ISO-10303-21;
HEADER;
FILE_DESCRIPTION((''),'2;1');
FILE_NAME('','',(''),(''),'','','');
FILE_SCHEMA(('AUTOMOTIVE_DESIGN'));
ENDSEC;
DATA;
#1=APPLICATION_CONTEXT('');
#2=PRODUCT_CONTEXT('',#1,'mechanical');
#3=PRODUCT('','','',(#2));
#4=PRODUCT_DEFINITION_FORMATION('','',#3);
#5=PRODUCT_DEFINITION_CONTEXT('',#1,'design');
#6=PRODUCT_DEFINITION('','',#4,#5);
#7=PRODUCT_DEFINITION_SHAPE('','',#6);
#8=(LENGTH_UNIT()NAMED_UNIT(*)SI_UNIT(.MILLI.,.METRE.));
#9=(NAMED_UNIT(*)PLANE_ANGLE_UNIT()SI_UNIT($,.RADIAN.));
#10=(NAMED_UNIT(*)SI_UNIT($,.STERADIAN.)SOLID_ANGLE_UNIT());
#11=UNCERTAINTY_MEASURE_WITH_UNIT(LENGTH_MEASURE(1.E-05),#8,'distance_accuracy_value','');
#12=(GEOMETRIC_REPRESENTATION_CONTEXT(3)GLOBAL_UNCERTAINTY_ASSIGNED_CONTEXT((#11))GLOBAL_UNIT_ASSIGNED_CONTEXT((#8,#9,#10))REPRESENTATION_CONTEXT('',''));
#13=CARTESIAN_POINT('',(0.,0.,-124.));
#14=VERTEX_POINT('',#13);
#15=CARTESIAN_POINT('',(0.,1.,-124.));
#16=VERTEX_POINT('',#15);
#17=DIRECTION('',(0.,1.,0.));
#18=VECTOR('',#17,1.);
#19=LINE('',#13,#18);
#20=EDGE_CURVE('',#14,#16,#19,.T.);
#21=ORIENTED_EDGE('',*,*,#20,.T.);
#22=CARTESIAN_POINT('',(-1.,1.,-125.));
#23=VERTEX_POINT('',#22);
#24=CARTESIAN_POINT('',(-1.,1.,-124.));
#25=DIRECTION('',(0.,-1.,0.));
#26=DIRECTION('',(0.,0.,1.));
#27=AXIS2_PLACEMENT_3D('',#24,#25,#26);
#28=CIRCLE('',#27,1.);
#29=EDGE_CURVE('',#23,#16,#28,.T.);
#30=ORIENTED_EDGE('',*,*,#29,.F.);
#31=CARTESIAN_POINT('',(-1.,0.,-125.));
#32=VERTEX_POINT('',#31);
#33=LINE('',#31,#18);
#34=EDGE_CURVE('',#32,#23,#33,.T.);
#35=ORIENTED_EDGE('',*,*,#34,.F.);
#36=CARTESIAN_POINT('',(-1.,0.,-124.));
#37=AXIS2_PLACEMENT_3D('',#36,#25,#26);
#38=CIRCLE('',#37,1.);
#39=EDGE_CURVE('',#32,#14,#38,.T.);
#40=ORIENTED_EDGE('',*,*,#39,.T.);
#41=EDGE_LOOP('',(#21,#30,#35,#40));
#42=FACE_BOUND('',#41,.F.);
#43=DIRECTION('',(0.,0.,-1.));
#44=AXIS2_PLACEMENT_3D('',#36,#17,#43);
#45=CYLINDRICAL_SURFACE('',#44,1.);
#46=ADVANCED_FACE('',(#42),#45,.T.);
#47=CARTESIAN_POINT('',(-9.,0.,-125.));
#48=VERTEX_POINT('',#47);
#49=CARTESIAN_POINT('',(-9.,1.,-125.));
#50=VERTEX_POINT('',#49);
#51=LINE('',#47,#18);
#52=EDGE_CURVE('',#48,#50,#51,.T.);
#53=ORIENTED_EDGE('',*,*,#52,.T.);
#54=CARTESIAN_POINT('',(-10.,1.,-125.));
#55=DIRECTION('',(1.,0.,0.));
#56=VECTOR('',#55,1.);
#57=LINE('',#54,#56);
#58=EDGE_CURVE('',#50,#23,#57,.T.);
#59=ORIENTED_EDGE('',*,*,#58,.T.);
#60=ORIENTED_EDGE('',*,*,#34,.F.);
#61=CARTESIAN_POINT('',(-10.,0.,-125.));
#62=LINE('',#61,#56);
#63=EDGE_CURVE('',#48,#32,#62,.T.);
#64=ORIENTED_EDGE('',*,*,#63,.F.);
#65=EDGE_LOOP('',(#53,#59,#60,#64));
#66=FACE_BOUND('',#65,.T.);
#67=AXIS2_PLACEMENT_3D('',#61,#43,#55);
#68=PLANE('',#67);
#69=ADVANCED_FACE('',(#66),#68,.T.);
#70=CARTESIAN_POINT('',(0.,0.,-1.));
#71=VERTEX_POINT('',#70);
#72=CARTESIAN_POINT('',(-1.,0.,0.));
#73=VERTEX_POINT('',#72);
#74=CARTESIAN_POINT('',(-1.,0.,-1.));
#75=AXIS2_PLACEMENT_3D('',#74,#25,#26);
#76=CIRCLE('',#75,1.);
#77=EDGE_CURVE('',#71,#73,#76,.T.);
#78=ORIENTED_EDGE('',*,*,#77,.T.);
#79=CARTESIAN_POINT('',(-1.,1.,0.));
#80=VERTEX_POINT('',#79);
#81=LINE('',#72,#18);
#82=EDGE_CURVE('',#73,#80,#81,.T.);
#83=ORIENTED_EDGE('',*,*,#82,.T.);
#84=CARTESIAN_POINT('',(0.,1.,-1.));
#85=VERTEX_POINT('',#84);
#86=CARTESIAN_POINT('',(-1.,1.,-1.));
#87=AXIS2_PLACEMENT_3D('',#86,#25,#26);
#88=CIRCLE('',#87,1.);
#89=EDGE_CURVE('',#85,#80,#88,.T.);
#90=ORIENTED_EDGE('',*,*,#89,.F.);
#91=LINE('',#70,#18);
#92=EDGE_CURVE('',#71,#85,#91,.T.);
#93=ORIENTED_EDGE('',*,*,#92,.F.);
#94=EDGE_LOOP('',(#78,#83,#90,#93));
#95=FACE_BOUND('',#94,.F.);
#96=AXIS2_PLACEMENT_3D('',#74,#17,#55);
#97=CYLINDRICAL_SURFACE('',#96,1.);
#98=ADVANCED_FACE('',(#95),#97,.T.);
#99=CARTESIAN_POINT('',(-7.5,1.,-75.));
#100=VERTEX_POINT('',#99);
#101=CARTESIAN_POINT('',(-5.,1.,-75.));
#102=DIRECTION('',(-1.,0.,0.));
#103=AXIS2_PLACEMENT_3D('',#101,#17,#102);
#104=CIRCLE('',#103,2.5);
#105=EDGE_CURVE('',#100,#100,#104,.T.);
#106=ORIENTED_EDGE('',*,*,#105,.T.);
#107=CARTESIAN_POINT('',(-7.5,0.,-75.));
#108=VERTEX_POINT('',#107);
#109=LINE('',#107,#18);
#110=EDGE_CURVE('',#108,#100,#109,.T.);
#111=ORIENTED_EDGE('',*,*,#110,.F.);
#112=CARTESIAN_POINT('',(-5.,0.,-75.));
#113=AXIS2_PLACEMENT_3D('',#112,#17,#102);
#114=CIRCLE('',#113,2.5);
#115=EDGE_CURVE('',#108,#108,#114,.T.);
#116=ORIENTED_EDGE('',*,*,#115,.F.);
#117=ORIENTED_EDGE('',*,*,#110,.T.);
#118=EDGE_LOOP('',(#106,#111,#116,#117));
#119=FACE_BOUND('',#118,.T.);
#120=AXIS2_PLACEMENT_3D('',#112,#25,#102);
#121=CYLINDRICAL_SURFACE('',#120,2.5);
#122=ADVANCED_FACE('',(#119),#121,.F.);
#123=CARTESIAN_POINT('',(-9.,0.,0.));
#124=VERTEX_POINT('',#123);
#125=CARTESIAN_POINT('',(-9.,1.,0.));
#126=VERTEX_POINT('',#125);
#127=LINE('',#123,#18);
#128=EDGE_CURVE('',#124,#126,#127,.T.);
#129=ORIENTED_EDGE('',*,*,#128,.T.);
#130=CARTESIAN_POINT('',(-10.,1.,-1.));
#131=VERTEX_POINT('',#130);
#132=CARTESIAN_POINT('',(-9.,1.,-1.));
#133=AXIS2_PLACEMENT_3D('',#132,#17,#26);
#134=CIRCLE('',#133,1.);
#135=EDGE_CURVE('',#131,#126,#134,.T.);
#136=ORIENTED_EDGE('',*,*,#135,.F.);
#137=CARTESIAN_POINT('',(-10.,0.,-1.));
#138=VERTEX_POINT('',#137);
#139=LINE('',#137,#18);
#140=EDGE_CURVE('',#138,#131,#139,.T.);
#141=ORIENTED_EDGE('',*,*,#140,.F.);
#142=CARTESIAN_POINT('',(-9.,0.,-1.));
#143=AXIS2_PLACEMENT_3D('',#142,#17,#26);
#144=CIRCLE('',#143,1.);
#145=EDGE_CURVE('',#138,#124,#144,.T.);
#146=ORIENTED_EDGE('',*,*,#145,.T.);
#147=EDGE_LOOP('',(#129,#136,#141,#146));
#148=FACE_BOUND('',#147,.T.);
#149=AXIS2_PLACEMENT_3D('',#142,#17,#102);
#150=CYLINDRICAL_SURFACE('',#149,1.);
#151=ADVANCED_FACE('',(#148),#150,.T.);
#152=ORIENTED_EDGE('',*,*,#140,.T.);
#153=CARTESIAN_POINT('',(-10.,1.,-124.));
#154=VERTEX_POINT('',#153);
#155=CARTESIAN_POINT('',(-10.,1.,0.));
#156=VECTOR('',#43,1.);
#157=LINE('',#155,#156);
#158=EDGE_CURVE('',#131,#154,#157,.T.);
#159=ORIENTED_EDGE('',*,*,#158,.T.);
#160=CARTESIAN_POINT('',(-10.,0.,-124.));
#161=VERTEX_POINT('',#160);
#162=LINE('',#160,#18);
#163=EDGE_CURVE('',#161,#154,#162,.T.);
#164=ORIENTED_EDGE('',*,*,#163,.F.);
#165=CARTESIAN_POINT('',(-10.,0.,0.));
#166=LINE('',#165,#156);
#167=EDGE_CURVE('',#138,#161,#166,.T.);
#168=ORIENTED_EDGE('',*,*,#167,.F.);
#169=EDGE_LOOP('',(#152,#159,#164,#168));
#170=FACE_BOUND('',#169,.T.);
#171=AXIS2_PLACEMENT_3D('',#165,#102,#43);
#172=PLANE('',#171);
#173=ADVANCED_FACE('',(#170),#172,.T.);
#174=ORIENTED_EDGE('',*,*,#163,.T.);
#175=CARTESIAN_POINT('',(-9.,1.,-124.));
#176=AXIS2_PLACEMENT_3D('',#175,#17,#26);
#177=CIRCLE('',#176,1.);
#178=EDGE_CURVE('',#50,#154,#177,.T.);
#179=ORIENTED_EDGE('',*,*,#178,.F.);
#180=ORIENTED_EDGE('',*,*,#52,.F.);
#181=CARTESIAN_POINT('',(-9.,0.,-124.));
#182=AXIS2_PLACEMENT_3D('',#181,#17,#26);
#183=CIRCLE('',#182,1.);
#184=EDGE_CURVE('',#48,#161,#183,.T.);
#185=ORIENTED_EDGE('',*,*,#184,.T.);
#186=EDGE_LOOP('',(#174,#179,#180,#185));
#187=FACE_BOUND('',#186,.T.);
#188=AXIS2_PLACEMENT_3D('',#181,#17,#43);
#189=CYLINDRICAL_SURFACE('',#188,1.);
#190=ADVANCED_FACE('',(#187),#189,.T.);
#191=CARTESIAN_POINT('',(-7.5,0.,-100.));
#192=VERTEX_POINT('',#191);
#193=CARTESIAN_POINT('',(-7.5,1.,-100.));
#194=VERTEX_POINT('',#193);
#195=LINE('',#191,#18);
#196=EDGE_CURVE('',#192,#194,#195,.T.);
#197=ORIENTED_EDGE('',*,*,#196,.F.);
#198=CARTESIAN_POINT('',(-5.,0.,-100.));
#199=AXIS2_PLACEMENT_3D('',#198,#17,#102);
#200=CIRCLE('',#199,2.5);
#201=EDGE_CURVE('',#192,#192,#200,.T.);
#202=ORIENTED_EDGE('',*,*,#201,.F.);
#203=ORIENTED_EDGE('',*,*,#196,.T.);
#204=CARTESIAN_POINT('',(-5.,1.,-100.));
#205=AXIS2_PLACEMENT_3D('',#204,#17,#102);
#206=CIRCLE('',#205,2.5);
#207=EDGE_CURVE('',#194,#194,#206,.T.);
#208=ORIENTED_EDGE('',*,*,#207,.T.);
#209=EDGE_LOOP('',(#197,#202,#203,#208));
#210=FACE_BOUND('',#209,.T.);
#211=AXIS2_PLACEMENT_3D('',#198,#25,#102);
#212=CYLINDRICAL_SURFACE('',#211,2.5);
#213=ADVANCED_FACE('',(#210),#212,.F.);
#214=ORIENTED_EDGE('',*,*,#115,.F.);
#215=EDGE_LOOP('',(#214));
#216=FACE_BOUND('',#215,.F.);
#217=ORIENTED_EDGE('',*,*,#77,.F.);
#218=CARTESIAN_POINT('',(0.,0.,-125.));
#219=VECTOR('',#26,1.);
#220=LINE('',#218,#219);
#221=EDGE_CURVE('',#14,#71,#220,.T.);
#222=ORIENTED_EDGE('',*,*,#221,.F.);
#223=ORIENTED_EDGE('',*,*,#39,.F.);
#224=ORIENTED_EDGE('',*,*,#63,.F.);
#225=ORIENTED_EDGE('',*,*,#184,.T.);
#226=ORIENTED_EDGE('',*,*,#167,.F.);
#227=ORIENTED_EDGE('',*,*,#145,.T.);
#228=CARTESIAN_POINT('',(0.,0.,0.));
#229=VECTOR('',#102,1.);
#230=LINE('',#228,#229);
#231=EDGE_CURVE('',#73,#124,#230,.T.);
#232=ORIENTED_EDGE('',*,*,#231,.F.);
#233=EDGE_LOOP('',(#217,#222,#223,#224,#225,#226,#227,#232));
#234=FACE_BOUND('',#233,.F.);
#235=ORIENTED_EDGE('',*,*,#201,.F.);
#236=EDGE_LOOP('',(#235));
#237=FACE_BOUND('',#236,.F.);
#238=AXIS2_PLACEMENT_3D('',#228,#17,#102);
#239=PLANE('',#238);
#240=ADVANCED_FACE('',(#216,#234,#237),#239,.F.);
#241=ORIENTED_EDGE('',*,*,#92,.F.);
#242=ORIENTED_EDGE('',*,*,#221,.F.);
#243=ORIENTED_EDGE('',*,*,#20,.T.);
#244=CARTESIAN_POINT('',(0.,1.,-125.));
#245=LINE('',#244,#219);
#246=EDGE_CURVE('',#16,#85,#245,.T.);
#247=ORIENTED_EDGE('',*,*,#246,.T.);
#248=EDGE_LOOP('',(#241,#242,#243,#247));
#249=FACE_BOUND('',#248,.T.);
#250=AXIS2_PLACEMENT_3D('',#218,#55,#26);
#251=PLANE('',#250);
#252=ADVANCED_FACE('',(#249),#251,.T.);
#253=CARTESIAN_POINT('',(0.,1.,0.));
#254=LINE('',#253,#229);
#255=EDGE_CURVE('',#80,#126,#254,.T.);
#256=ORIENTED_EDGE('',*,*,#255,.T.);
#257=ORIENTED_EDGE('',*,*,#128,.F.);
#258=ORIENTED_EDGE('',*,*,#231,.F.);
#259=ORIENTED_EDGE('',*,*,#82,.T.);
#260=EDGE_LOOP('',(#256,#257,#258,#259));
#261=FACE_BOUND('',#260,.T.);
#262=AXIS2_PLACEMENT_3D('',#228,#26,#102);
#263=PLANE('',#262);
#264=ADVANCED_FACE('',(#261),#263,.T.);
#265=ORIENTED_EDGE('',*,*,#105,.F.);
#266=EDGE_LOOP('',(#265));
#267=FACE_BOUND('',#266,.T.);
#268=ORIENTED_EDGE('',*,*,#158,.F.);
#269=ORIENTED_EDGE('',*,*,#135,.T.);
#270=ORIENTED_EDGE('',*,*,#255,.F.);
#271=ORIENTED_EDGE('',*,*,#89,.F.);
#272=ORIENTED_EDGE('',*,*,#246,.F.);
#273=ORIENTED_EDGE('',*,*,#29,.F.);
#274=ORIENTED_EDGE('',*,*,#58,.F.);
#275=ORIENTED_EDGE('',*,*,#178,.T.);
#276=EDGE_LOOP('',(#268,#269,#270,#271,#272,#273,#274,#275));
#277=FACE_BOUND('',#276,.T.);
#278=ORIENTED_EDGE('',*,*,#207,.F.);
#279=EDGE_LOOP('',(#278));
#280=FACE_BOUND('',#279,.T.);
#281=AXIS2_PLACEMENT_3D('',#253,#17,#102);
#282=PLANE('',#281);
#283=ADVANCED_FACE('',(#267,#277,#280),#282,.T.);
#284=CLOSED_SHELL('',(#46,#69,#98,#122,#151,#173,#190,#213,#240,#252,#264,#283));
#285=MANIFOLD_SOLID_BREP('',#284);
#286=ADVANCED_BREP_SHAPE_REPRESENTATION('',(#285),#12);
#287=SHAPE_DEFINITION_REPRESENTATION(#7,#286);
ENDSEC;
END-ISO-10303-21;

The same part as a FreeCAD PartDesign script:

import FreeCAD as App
import Part
import Sketcher

V = App.Vector
Q = App.Units.Quantity


def edges_at(feature, points):
    """Names of the edges that pass closest to the given points."""
    edges = feature.Shape.Edges
    near = lambda p: min(range(len(edges)), key=lambda i: edges[i].distToShape(Part.Vertex(*p))[0])
    return sorted({f"Edge{near(p) + 1}" for p in points})


def add_polygon(sketch, points):
    """Adds a closed chain of lines whose ends are joined by coincident constraints."""
    first, n = sketch.GeometryCount, len(points)
    for a, b in zip(points, points[1:] + points[:1]):
        sketch.addGeometry(Part.LineSegment(App.Vector(*a, 0), App.Vector(*b, 0)), False)
    for i in range(n):
        sketch.addConstraint(Sketcher.Constraint("Coincident", first + i, 2, first + (i + 1) % n, 1))

doc = App.newDocument("Part")
body = doc.addObject("PartDesign::Body", "Body")

# Sketch on XZ plane
sketch1 = body.newObject("Sketcher::SketchObject", "Sketch")
sketch1.AttachmentSupport = (doc.getObject("XZ_Plane"), [""])
sketch1.MapMode = "FlatFace"
add_polygon(sketch1, [(-10, 0), (0, 0), (0, -125), (-10, -125)])  # lines 0-3
sketch1.addGeometry(Part.Circle(V(-5, -100, 0), V(0, 0, 1), 2.5), False)  # 4
sketch1.addGeometry(Part.Circle(V(-5, -75, 0), V(0, 0, 1), 2.5), False)  # 5
sketch1.addConstraint([
    Sketcher.Constraint("Horizontal", 0),
    Sketcher.Constraint("Vertical", 1),
    Sketcher.Constraint("Horizontal", 2),
    Sketcher.Constraint("Vertical", 3),
    Sketcher.Constraint("Coincident", 0, 2, -1, 1),
    Sketcher.Constraint("Equal", 4, 5),
    Sketcher.Constraint("Vertical", 4, 3, 5, 3),
    Sketcher.Constraint("Diameter", 4, Q("5 mm")),
    Sketcher.Constraint("DistanceX", 0, 1, 0, 2, Q("10 mm")),
    Sketcher.Constraint("DistanceY", 1, 2, 1, 1, Q("125 mm")),
    Sketcher.Constraint("DistanceX", 4, 3, -1, 1, Q("5 mm")),
    Sketcher.Constraint("DistanceY", 4, 3, 5, 3, Q("25 mm")),
    Sketcher.Constraint("DistanceY", 1, 2, 4, 3, Q("25 mm")),
])
pad1 = body.newObject("PartDesign::Pad", "Pad")
pad1.Profile = sketch1
pad1.Length = 1
pad1.Reversed = True
doc.recompute()

fillet = body.newObject("PartDesign::Fillet", "Fillet")
fillet.Base = (pad1, edges_at(pad1, [(0, 0.5, -125)]))
fillet.Radius = 1
doc.recompute()

fillet2 = body.newObject("PartDesign::Fillet", "Fillet001")
fillet2.Base = (fillet, edges_at(fillet, [(0, 0.5, 0), (-10, 0.5, 0), (-10, 0.5, -125)]))
fillet2.Radius = 1

doc.recompute()
